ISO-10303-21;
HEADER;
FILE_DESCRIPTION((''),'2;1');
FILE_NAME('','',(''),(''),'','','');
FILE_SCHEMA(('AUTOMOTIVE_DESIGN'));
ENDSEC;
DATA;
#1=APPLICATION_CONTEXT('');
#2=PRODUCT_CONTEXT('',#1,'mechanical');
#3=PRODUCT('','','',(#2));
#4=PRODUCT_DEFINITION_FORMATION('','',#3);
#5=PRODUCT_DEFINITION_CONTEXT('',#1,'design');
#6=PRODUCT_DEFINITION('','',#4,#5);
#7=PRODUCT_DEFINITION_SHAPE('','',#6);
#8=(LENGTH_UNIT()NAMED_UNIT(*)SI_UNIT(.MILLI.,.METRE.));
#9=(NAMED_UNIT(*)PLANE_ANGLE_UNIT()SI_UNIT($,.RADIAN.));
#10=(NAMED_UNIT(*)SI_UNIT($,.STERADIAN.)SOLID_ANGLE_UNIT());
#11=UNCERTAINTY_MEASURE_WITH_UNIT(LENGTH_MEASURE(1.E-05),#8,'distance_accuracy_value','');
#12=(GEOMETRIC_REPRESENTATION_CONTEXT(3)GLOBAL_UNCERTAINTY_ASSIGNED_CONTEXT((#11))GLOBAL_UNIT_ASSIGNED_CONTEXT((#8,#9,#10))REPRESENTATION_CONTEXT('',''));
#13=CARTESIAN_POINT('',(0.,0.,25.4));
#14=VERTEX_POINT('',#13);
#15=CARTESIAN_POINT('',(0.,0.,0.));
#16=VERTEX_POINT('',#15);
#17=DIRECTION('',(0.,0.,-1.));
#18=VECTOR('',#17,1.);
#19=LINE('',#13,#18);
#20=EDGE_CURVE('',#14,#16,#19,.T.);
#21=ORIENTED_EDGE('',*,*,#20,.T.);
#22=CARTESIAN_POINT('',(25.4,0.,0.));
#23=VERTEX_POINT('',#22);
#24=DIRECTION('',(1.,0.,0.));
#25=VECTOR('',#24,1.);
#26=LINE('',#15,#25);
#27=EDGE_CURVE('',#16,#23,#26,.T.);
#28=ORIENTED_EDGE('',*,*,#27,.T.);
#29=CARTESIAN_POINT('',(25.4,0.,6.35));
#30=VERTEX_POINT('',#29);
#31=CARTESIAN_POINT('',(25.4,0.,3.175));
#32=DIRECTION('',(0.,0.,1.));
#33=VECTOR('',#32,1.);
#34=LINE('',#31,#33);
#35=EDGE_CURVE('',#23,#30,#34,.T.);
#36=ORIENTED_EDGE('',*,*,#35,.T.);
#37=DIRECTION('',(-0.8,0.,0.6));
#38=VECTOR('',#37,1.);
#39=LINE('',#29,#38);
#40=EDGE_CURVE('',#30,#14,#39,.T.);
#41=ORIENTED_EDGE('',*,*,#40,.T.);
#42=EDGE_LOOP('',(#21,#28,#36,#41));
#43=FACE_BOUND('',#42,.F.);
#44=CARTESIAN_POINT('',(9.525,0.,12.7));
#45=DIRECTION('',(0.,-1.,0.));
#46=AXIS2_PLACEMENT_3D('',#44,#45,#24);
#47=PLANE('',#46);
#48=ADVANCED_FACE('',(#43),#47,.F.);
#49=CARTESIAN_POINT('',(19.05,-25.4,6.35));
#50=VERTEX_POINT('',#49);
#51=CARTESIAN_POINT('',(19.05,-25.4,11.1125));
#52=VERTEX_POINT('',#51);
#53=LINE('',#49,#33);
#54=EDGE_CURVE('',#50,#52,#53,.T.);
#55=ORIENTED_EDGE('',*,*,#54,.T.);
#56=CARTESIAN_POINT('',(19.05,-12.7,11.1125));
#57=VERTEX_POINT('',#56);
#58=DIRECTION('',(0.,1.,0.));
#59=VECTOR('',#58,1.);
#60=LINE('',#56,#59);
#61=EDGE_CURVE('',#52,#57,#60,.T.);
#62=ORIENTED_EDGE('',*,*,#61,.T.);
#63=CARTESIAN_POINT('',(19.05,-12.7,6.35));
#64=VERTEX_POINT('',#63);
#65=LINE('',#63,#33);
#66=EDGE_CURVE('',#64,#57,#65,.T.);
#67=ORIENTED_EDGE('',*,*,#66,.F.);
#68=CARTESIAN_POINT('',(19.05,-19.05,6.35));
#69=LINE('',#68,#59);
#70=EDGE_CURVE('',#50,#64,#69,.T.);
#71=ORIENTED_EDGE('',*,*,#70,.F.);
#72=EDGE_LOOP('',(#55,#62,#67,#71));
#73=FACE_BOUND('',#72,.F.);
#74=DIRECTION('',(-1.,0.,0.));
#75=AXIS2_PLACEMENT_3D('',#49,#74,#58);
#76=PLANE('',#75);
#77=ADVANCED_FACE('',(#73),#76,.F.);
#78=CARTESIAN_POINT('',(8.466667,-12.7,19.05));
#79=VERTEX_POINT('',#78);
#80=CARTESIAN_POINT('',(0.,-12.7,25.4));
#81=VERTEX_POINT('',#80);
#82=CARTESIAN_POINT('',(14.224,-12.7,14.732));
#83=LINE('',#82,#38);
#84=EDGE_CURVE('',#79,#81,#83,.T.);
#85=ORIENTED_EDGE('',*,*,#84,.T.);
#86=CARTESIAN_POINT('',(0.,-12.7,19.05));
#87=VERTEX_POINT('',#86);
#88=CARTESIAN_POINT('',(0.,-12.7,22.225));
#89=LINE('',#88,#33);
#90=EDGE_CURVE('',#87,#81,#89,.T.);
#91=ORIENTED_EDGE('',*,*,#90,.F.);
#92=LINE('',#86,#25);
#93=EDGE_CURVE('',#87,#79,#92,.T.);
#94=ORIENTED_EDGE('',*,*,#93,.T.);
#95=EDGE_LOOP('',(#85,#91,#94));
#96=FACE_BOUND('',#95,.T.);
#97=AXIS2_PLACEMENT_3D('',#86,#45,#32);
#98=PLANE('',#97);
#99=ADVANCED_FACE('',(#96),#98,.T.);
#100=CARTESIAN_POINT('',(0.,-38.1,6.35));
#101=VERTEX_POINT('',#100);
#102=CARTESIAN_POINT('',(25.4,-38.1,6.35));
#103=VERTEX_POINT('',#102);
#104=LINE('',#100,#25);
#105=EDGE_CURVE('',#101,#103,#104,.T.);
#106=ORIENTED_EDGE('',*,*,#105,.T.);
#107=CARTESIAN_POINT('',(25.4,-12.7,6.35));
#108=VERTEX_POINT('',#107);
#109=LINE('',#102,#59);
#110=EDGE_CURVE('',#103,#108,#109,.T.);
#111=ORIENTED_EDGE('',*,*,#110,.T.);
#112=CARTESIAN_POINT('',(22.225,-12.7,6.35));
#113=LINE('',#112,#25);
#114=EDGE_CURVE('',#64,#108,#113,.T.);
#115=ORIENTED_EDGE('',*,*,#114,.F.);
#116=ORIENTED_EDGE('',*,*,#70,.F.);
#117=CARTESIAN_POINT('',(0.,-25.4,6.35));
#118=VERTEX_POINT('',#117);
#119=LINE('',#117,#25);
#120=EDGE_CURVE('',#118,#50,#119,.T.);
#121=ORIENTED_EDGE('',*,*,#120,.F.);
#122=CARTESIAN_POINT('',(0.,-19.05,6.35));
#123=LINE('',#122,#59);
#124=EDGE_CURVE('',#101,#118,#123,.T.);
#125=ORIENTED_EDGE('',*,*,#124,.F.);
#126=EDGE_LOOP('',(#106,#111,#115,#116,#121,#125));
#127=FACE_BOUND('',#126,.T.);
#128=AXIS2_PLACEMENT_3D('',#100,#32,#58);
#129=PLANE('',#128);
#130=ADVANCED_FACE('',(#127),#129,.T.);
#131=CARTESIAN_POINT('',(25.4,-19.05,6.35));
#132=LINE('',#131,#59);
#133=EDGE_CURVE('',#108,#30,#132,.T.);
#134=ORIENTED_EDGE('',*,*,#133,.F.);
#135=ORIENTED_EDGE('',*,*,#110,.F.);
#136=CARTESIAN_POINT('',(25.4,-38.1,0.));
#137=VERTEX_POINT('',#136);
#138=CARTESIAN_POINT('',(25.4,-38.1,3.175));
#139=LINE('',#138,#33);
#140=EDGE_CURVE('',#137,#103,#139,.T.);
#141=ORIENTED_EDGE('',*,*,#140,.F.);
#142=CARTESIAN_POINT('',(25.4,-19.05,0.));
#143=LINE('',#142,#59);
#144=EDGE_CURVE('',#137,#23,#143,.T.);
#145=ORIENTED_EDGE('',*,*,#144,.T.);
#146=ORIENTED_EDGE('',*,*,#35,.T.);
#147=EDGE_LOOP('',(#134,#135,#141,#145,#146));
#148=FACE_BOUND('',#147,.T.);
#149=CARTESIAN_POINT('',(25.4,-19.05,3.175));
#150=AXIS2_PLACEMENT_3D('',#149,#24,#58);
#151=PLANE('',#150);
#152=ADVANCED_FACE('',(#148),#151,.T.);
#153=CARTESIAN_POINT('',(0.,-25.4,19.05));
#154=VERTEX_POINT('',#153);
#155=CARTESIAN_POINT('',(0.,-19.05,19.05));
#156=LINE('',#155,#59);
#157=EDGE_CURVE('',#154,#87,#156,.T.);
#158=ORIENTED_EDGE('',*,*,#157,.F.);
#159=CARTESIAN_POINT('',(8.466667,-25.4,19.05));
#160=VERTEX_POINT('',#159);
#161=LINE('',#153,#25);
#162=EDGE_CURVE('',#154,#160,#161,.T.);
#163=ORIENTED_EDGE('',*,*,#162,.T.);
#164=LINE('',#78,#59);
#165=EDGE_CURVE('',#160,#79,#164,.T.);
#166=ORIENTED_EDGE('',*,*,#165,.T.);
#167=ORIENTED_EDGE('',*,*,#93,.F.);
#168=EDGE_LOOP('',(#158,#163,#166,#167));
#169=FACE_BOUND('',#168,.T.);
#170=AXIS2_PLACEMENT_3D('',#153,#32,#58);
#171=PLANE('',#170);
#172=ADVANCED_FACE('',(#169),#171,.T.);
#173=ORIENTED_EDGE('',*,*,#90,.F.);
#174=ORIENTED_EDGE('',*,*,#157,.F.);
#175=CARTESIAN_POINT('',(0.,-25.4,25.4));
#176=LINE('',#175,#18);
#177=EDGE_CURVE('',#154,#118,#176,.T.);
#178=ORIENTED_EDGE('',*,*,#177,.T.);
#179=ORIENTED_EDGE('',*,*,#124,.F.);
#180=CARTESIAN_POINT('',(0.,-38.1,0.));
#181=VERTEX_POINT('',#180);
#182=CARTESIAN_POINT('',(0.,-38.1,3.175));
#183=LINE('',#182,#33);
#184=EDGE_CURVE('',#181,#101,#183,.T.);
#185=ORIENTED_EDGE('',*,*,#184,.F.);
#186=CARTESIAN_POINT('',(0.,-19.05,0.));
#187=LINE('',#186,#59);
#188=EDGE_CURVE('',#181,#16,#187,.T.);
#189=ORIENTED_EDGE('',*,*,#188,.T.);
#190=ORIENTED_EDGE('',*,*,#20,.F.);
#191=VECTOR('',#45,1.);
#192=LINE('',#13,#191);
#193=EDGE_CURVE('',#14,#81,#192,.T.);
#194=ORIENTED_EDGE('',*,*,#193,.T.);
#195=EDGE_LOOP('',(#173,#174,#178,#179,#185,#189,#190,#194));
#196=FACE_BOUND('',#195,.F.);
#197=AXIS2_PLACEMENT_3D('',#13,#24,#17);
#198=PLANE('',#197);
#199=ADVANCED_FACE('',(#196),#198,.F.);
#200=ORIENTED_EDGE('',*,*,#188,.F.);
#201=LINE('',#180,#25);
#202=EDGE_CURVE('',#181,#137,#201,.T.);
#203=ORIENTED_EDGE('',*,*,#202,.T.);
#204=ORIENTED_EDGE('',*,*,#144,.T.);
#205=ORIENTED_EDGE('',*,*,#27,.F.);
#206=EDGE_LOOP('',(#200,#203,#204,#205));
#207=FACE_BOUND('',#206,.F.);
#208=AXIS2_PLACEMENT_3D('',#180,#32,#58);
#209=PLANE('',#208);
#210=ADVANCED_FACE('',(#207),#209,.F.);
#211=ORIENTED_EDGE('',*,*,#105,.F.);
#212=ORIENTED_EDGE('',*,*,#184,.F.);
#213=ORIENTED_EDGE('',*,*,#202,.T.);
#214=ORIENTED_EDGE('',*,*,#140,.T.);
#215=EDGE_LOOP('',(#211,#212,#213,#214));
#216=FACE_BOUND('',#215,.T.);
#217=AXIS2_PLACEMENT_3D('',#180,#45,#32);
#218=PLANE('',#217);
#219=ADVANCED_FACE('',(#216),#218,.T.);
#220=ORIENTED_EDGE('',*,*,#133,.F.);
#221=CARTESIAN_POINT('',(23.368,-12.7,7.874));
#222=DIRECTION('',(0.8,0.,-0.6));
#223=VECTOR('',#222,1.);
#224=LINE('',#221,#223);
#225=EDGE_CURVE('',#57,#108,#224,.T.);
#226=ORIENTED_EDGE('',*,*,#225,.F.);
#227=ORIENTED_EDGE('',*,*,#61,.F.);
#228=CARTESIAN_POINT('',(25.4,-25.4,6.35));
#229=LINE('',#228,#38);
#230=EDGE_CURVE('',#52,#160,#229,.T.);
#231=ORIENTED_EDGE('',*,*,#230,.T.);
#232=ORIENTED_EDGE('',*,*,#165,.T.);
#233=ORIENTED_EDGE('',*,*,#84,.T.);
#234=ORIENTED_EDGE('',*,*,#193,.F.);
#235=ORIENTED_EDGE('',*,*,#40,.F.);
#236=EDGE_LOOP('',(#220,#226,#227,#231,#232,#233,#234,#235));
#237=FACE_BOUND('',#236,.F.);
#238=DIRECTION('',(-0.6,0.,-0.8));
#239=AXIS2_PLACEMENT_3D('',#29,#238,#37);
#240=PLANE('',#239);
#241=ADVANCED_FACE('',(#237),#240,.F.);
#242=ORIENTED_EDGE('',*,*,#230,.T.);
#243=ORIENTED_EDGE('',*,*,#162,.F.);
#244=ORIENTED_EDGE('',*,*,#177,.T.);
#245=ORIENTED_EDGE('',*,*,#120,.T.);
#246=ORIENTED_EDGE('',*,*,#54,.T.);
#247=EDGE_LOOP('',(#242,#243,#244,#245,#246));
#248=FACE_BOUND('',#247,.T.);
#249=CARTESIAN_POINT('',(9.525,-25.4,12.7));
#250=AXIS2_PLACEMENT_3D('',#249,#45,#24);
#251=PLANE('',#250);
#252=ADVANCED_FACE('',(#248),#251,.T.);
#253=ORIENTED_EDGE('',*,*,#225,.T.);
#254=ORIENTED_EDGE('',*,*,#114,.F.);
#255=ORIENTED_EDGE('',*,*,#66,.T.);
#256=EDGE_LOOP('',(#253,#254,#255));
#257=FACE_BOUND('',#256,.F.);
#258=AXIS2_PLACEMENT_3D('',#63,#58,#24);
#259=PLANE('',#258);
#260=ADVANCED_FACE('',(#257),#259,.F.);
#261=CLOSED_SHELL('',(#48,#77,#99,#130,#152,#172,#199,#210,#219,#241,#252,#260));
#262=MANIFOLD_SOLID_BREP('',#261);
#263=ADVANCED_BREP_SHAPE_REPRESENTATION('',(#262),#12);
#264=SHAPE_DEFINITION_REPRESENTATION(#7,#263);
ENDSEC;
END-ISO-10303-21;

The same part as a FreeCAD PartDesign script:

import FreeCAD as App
import Part
import Sketcher

V = App.Vector
Q = App.Units.Quantity


def add_polygon(sketch, points):
    """Adds a closed chain of lines whose ends are joined by coincident constraints."""
    first, n = sketch.GeometryCount, len(points)
    for a, b in zip(points, points[1:] + points[:1]):
        sketch.addGeometry(Part.LineSegment(App.Vector(*a, 0), App.Vector(*b, 0)), False)
    for i in range(n):
        sketch.addConstraint(Sketcher.Constraint("Coincident", first + i, 2, first + (i + 1) % n, 1))

doc = App.newDocument("Part")
params = doc.addObject("Spreadsheet::Sheet", "Params")
for row, (alias, value) in enumerate([
    ("sketch1_width", "1.5 in"),
    ("sketch1_height", "0.25 in"),
    ("pad1_length", "1 in"),
    ("sketch2_width", "1 in"),
    ("sketch2_height", "0.75 in"),
    ("pad2_length", "1 in"),
    ("sketch3_width", "0.5 in"),
    ("sketch3_height", "0.25 in"),
    ("sketch4_height", "0.5 in"),
    ("sketch4_width", "0.25 in"),
], start=1):
    params.set(f"A{row}", alias)
    params.set(f"B{row}", "=" + value)
    params.setAlias(f"B{row}", alias)

body = doc.addObject("PartDesign::Body", "Body")

sketch1 = doc.addObject("Sketcher::SketchObject", "Sketch")
body.addObject(sketch1)
sketch1.AttachmentSupport = (doc.YZ_Plane, [""])
sketch1.MapMode = "FlatFace"
add_polygon(sketch1, [(-38, 6), (-38, 0), (0, 0), (0, 6)])
sketch1.addConstraint(Sketcher.Constraint("Vertical", 0))
sketch1.addConstraint(Sketcher.Constraint("Horizontal", 1))
sketch1.addConstraint(Sketcher.Constraint("Vertical", 2))
sketch1.addConstraint(Sketcher.Constraint("Horizontal", 3))
sketch1.addConstraint(Sketcher.Constraint("Coincident", 1, 2, -1, 1))
sketch1.addConstraint(Sketcher.Constraint("DistanceX", 1, 1, 1, 2, Q("1.5 in")))
sketch1.addConstraint(Sketcher.Constraint("DistanceY", 0, 2, 0, 1, Q("0.25 in")))
sketch1.setExpression("Constraints[9]", "Params.sketch1_width")
sketch1.setExpression("Constraints[10]", "Params.sketch1_height")
pad1 = doc.addObject("PartDesign::Pad", "Pad")
body.addObject(pad1)
pad1.Profile = sketch1
pad1.setExpression("Length", "Params.pad1_length")

sketch2 = doc.addObject("Sketcher::SketchObject", "Sketch001")
body.addObject(sketch2)
sketch2.AttachmentSupport = (doc.XZ_Plane, [""])
sketch2.MapMode = "FlatFace"
add_polygon(sketch2, [(0, 25), (0, 6), (25, 6)])
sketch2.addConstraint(Sketcher.Constraint("Vertical", 0))
sketch2.addConstraint(Sketcher.Constraint("Horizontal", 1))
sketch2.addConstraint(Sketcher.Constraint("PointOnObject", 0, 2, -2))
sketch2.addConstraint(Sketcher.Constraint("DistanceX", 1, 1, 1, 2, Q("1 in")))
sketch2.addConstraint(Sketcher.Constraint("DistanceY", -1, 1, 2, 2, Q("1 in")))
sketch2.addConstraint(Sketcher.Constraint("DistanceY", 0, 2, 0, 1, Q("0.75 in")))
sketch2.setExpression("Constraints[6]", "Params.sketch2_width")
sketch2.setExpression("Constraints[8]", "Params.sketch2_height")
pad2 = doc.addObject("PartDesign::Pad", "Pad001")
body.addObject(pad2)
pad2.Profile = sketch2
pad2.setExpression("Length", "Params.pad2_length")

sketch3 = doc.addObject("Sketcher::SketchObject", "Sketch002")
body.addObject(sketch3)
sketch3.AttachmentSupport = (doc.YZ_Plane, [""])
sketch3.MapMode = "FlatFace"
add_polygon(sketch3, [(-25, 25), (-25, 19), (-13, 19), (-13, 25)])
sketch3.addConstraint(Sketcher.Constraint("Vertical", 0))
sketch3.addConstraint(Sketcher.Constraint("Horizontal", 1))
sketch3.addConstraint(Sketcher.Constraint("Vertical", 2))
sketch3.addConstraint(Sketcher.Constraint("Horizontal", 3))
sketch3.addConstraint(Sketcher.Constraint("DistanceX", 1, 1, 1, 2, Q("0.5 in")))
sketch3.addConstraint(Sketcher.Constraint("DistanceX", 0, 2, -1, 1, Q("1 in")))
sketch3.addConstraint(Sketcher.Constraint("DistanceY", -1, 1, 2, 2, Q("1 in")))
sketch3.addConstraint(Sketcher.Constraint("DistanceY", 0, 2, 0, 1, Q("0.25 in")))
sketch3.setExpression("Constraints[8]", "Params.sketch3_width")
sketch3.setExpression("Constraints[11]", "Params.sketch3_height")
pocket1 = doc.addObject("PartDesign::Pocket", "Pocket")
body.addObject(pocket1)
pocket1.Profile = sketch3
pocket1.Type = "ThroughAll"
pocket1.Reversed = True

sketch4 = doc.addObject("Sketcher::SketchObject", "Sketch003")
body.addObject(sketch4)
sketch4.AttachmentSupport = (doc.XY_Plane, [""])
sketch4.MapMode = "FlatFace"
sketch4.AttachmentOffset = App.Placement(V(0, 0, 0.25 * 25.4), App.Rotation())
add_polygon(sketch4, [(19, -13), (19, -25), (25, -25), (25, -13)])
sketch4.addConstraint(Sketcher.Constraint("Vertical", 0))
sketch4.addConstraint(Sketcher.Constraint("Horizontal", 1))
sketch4.addConstraint(Sketcher.Constraint("Vertical", 2))
sketch4.addConstraint(Sketcher.Constraint("Horizontal", 3))
sketch4.addConstraint(Sketcher.Constraint("DistanceY", 0, 2, 0, 1, Q("0.5 in")))
sketch4.addConstraint(Sketcher.Constraint("DistanceY", 0, 2, -1, 1, Q("1 in")))
sketch4.addConstraint(Sketcher.Constraint("DistanceX", -1, 1, 1, 2, Q("1 in")))
sketch4.addConstraint(Sketcher.Constraint("DistanceX", 1, 1, 1, 2, Q("0.25 in")))
sketch4.setExpression("Constraints[8]", "Params.sketch4_height")
sketch4.setExpression("Constraints[11]", "Params.sketch4_width")
pocket2 = doc.addObject("PartDesign::Pocket", "Pocket001")
body.addObject(pocket2)
pocket2.Profile = sketch4
pocket2.Type = "ThroughAll"
pocket2.Reversed = True

doc.recompute()
